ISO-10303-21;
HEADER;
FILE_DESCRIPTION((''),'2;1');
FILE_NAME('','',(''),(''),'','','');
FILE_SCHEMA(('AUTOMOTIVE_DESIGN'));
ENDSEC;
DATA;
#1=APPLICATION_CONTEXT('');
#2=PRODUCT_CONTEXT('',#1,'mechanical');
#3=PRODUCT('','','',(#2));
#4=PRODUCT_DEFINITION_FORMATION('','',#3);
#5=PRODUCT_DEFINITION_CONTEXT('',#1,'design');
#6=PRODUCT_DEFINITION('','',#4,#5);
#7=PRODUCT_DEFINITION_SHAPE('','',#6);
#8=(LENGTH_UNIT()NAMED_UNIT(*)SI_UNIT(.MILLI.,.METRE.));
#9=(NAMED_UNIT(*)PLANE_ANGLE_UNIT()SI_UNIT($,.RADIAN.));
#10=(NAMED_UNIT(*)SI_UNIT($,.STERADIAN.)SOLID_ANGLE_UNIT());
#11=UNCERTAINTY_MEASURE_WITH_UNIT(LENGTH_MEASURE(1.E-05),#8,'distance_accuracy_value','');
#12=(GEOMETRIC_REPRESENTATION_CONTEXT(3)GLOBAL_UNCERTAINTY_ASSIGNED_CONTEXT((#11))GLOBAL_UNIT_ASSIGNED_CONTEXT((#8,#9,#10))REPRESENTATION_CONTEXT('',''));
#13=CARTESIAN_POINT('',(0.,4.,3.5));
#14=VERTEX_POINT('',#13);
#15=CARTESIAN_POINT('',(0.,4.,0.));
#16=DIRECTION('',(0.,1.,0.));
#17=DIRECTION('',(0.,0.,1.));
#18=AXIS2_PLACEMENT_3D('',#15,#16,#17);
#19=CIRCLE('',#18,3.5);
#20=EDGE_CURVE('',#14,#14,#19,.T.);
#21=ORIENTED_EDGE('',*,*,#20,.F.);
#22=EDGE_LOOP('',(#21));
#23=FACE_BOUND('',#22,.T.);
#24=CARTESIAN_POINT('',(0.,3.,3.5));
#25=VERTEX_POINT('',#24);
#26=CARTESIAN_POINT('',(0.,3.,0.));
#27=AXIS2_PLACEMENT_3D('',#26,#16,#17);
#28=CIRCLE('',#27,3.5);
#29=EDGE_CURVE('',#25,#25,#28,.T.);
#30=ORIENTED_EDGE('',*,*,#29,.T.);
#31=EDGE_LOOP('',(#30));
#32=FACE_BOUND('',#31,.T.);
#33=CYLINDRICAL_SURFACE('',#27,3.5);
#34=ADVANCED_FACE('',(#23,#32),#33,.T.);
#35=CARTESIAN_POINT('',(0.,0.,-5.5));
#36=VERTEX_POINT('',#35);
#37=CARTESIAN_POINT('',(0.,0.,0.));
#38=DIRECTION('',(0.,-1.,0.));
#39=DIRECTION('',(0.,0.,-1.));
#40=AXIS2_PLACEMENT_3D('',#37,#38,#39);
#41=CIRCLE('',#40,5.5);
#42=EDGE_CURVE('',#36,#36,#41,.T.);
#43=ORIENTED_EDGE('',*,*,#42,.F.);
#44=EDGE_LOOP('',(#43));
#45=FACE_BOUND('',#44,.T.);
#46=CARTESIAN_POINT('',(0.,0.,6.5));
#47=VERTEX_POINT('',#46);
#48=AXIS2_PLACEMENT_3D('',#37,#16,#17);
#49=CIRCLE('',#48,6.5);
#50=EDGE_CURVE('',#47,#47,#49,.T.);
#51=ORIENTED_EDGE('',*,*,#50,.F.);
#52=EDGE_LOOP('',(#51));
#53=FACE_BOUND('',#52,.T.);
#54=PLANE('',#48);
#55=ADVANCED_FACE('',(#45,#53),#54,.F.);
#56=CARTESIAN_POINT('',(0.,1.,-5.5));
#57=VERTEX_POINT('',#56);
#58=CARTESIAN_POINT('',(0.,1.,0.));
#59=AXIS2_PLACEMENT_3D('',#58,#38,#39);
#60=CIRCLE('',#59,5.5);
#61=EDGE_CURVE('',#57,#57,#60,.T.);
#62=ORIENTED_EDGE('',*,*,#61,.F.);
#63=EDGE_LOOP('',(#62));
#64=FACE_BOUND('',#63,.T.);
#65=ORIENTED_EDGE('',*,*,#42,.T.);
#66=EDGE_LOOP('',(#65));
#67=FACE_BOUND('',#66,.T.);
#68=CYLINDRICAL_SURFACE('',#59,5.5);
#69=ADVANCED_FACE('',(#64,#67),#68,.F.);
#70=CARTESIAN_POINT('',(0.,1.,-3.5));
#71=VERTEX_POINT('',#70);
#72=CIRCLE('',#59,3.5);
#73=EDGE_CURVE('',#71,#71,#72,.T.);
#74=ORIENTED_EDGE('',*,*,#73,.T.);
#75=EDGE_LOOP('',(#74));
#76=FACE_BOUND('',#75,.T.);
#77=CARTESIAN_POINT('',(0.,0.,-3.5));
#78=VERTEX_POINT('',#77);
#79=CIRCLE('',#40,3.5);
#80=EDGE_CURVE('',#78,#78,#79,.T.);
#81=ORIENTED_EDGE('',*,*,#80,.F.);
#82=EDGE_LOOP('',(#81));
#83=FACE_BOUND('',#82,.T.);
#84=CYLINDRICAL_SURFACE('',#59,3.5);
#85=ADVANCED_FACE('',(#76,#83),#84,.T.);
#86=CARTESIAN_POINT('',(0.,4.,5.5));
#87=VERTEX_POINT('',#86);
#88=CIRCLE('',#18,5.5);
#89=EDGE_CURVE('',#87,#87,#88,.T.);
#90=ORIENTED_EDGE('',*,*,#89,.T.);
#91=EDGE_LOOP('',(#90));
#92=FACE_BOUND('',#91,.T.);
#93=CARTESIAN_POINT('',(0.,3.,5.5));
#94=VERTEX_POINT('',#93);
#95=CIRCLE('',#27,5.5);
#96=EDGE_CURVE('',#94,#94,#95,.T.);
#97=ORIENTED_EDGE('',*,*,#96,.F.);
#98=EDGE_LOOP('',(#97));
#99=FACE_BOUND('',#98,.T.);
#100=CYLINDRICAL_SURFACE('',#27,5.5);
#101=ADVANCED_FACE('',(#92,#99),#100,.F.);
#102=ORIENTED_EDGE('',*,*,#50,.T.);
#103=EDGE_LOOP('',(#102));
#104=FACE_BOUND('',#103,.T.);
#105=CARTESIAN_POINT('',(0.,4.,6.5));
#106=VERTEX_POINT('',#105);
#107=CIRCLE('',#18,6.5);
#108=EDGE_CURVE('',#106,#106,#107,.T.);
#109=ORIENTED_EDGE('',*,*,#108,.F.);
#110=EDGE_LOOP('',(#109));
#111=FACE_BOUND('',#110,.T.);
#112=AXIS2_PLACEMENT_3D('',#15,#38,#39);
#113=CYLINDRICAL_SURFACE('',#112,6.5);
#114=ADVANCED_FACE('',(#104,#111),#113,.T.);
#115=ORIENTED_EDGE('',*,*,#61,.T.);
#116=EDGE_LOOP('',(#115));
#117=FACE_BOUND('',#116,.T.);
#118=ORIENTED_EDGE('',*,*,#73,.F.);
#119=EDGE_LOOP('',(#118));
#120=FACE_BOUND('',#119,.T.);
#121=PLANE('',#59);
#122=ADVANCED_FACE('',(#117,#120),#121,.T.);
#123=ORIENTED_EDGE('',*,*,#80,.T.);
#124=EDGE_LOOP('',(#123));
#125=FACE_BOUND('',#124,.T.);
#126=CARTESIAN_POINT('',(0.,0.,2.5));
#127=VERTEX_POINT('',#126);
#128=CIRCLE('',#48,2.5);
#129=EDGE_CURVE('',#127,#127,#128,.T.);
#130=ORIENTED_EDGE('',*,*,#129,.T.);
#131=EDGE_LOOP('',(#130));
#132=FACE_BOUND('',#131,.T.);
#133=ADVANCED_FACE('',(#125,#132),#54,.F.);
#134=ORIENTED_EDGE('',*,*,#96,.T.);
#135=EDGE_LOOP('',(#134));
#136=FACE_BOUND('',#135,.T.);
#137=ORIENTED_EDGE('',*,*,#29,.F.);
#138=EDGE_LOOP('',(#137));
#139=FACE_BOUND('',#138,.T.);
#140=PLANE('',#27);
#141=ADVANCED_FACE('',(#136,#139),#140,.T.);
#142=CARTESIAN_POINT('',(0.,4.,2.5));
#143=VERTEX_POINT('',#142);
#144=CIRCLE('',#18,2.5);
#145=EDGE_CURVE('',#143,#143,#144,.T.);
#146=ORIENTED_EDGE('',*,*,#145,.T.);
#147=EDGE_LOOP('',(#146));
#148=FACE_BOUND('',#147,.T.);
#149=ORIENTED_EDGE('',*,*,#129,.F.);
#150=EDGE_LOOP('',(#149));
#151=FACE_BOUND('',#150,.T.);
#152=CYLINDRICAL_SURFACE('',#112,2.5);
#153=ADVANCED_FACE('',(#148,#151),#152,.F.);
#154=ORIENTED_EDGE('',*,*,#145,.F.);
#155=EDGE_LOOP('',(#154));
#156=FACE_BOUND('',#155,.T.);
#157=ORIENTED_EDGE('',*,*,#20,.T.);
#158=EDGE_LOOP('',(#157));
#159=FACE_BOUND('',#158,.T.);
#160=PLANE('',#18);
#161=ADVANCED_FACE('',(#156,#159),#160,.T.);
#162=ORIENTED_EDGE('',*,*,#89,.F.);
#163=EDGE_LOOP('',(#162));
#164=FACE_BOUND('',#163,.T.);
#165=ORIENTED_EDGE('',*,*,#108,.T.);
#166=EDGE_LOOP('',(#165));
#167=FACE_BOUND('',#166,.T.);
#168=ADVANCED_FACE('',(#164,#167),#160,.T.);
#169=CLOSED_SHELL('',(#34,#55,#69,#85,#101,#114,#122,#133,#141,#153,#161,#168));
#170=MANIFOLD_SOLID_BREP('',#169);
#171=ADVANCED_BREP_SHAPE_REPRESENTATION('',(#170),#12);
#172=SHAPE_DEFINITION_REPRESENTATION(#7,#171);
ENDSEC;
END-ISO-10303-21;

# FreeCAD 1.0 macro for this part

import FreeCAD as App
import Part
import Sketcher

V = App.Vector
Q = App.Units.Quantity

doc = App.newDocument("Part")
body = doc.addObject("PartDesign::Body", "Body")

sketch1 = body.newObject("Sketcher::SketchObject", "Sketch")
sketch1.AttachmentSupport = (doc.getObject("XZ_Plane"), [""])
sketch1.MapMode = "FlatFace"
sketch1.addGeometry([
    Part.Circle(V(0, 0, 0), V(0, 0, 1), 6.5),
    Part.Circle(V(0, 0, 0), V(0, 0, 1), 2.5),
], False)
sketch1.addConstraint([
    Sketcher.Constraint("Coincident", 0, 3, -1, 1),
    Sketcher.Constraint("Coincident", 1, 3, -1, 1),
    Sketcher.Constraint("Diameter", 0, Q("13 mm")),
    Sketcher.Constraint("Diameter", 1, Q("5 mm")),
])
pad1 = body.newObject("PartDesign::Pad", "Pad")
pad1.Profile = sketch1
pad1.Length = 4
pad1.Reversed = True

sketch2 = body.newObject("Sketcher::SketchObject", "Sketch001")
sketch2.AttachmentSupport = (doc.getObject("XZ_Plane"), [""])
sketch2.MapMode = "FlatFace"
sketch2.AttachmentOffset = App.Placement(V(0, 0, -4), App.Rotation())
sketch2.addGeometry([
    Part.Circle(V(0, 0, 0), V(0, 0, 1), 5.5),
    Part.Circle(V(0, 0, 0), V(0, 0, 1), 3.5),
], False)
sketch2.addConstraint([
    Sketcher.Constraint("Coincident", 0, 3, -1, 1),
    Sketcher.Constraint("Coincident", 1, 3, -1, 1),
    Sketcher.Constraint("Diameter", 0, Q("11 mm")),
    Sketcher.Constraint("Diameter", 1, Q("7 mm")),
])
pocket1 = body.newObject("PartDesign::Pocket", "Pocket")
pocket1.Profile = sketch2
pocket1.Length = 1
pocket1.Reversed = True

sketch3 = body.newObject("Sketcher::SketchObject", "Sketch002")
sketch3.AttachmentSupport = (doc.getObject("XZ_Plane"), [""])
sketch3.MapMode = "FlatFace"
sketch3.AttachmentOffset = App.Placement(V(0, 0, -1), App.Rotation())
sketch3.addGeometry([
    Part.Circle(V(0, 0, 0), V(0, 0, 1), 5.5),
    Part.Circle(V(0, 0, 0), V(0, 0, 1), 3.5),
], False)
sketch3.addConstraint([
    Sketcher.Constraint("Coincident", 0, 3, -1, 1),
    Sketcher.Constraint("Coincident", 1, 3, -1, 1),
    Sketcher.Constraint("Diameter", 0, Q("11 mm")),
    Sketcher.Constraint("Diameter", 1, Q("7 mm")),
])
pocket2 = body.newObject("PartDesign::Pocket", "Pocket001")
pocket2.Profile = sketch3
pocket2.Length = 1
pocket2.Reversed = True

doc.recompute()
